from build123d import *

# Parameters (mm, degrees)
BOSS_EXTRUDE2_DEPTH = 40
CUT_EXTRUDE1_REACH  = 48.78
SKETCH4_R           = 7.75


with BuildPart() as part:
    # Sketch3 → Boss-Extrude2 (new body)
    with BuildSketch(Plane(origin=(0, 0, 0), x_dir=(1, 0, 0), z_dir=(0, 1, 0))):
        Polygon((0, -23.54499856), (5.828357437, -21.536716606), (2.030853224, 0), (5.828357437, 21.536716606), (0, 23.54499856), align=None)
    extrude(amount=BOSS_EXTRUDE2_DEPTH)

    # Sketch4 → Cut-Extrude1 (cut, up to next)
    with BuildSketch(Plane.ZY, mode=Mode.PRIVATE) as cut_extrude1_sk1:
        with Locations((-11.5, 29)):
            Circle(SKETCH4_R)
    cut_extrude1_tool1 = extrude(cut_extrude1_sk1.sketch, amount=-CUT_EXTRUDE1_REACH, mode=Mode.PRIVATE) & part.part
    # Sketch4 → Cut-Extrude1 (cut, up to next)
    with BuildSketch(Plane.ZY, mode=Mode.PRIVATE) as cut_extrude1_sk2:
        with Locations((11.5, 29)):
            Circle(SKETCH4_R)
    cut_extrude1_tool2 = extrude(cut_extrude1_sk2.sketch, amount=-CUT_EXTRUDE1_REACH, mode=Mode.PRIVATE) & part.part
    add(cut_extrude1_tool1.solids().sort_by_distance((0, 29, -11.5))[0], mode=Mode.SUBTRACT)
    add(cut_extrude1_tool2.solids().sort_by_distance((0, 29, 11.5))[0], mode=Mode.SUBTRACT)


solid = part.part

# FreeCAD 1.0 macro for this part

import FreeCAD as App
import Part
import Sketcher
Q = App.Units.Quantity

doc = App.newDocument("Part")
body = doc.addObject("PartDesign::Body", "Body")

# Sketch on XZ plane
sketch1 = doc.addObject("Sketcher::SketchObject", "Sketch")
body.addObject(sketch1)
sketch1.AttachmentSupport = (doc.XZ_Plane, [""])
sketch1.MapMode = "FlatFace"
sketch1.addGeometry(Part.LineSegment(App.Vector(0, 23.544999, 0), App.Vector(5.828357, 21.536717, 0)), False)
sketch1.addGeometry(Part.LineSegment(App.Vector(5.828357, 21.536717, 0), App.Vector(2.030853, 0, 0)), False)
sketch1.addGeometry(Part.LineSegment(App.Vector(2.030853, 0, 0), App.Vector(5.828357, -21.536717, 0)), False)
sketch1.addGeometry(Part.LineSegment(App.Vector(5.828357, -21.536717, 0), App.Vector(0, -23.544999, 0)), False)
sketch1.addGeometry(Part.LineSegment(App.Vector(0, -23.544999, 0), App.Vector(0, 23.544999, 0)), False)
sketch1.addConstraint(Sketcher.Constraint("Coincident", 0, 2, 1, 1))
sketch1.addConstraint(Sketcher.Constraint("Coincident", 1, 2, 2, 1))
sketch1.addConstraint(Sketcher.Constraint("Coincident", 2, 2, 3, 1))
sketch1.addConstraint(Sketcher.Constraint("Coincident", 3, 2, 4, 1))
sketch1.addConstraint(Sketcher.Constraint("Coincident", 4, 2, 0, 1))
sketch1.addConstraint(Sketcher.Constraint("Vertical", 4))
sketch1.addConstraint(Sketcher.Constraint("Symmetric", 3, 2, 4, 2, -1, 1))
sketch1.addConstraint(Sketcher.Constraint("Symmetric", 0, 2, 2, 2, -1))
sketch1.addConstraint(Sketcher.Constraint("PointOnObject", 1, 2, -1))
sketch1.addConstraint(Sketcher.Constraint("Angle", 1, Q("-100 deg")))
sketch1.addConstraint(Sketcher.Constraint("DistanceY", 3, 2, -1, 1, 23.544999))
sketch1.addConstraint(Sketcher.Constraint("DistanceY", 3, 2, 2, 2, 2.008282))
sketch1.addConstraint(Sketcher.Constraint("Distance", 0, 6.164653))
pad1 = doc.addObject("PartDesign::Pad", "Pad")
body.addObject(pad1)
pad1.Profile = sketch1
pad1.Length = 40
pad1.Reversed = True

# Sketch on YZ plane
sketch2 = doc.addObject("Sketcher::SketchObject", "Sketch001")
body.addObject(sketch2)
sketch2.AttachmentSupport = (doc.YZ_Plane, [""])
sketch2.MapMode = "FlatFace"
sketch2.addGeometry(Part.Circle(App.Vector(29, -11.5, 0), App.Vector(0, 0, 1), 7.75), False)
sketch2.addConstraint(Sketcher.Constraint("Diameter", 0, 15.5))
sketch2.addConstraint(Sketcher.Constraint("DistanceX", -1, 1, 0, 3, 29.0))
sketch2.addConstraint(Sketcher.Constraint("DistanceY", 0, 3, -1, 1, 11.5))
pocket1 = doc.addObject("PartDesign::Pocket", "Pocket")
body.addObject(pocket1)
pocket1.Profile = sketch2
pocket1.Type = "UpToFirst"
pocket1.Reversed = True

# Sketch on YZ plane
sketch3 = doc.addObject("Sketcher::SketchObject", "Sketch002")
body.addObject(sketch3)
sketch3.AttachmentSupport = (doc.YZ_Plane, [""])
sketch3.MapMode = "FlatFace"
sketch3.addGeometry(Part.Circle(App.Vector(29, 11.5, 0), App.Vector(0, 0, 1), 7.75), False)
sketch3.addConstraint(Sketcher.Constraint("Diameter", 0, 15.5))
sketch3.addConstraint(Sketcher.Constraint("DistanceX", -1, 1, 0, 3, 29.0))
sketch3.addConstraint(Sketcher.Constraint("DistanceY", -1, 1, 0, 3, 11.5))
pocket2 = doc.addObject("PartDesign::Pocket", "Pocket001")
body.addObject(pocket2)
pocket2.Profile = sketch3
pocket2.Type = "UpToFirst"
pocket2.Reversed = True

doc.recompute()
